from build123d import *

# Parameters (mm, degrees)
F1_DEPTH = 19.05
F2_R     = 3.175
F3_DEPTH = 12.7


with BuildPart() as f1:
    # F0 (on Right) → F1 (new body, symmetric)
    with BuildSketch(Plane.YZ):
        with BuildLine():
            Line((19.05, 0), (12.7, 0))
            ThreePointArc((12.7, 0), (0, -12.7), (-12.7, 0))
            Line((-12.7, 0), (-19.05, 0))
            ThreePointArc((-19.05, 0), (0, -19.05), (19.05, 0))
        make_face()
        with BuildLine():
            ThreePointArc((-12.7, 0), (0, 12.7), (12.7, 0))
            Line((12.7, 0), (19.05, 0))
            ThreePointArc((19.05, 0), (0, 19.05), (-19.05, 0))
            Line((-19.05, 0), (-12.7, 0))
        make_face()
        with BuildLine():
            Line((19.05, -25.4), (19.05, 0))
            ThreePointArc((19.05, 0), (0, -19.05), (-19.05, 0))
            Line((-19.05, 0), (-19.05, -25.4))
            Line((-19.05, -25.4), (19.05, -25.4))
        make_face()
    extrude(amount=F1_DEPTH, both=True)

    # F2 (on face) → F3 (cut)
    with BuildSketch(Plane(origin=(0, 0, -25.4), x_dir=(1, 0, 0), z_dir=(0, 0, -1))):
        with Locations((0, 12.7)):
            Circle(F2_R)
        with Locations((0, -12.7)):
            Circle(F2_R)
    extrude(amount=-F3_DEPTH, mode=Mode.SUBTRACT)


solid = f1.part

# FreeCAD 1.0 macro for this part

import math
import FreeCAD as App
import Part
import Sketcher
from FreeCAD import Vector
Q = App.Units.Quantity

doc = App.newDocument("Part")
body = doc.addObject("PartDesign::Body", "Body")

# Sketch on YZ plane
sketch1 = body.newObject("Sketcher::SketchObject", "Sketch")
sketch1.AttachmentSupport = (doc.getObject("YZ_Plane"), [""])
sketch1.MapMode = "FlatFace"
sketch1.addGeometry(Part.ArcOfCircle(Part.Circle(Vector(0, 0, 0), Vector(0, 0, 1), 19), math.radians(0), math.radians(180)), False)
sketch1.addGeometry(Part.LineSegment(Vector(-19, 0, 0), Vector(-19, -25, 0)), False)
sketch1.addGeometry(Part.LineSegment(Vector(-19, -25, 0), Vector(19, -25, 0)), False)
sketch1.addGeometry(Part.LineSegment(Vector(19, -25, 0), Vector(19, 0, 0)), False)
sketch1.addGeometry(Part.Circle(Vector(0, 0, 0), Vector(0, 0, 1), 13), False)
sketch1.addConstraint(Sketcher.Constraint("Tangent", 0, 2, 1, 1))
sketch1.addConstraint(Sketcher.Constraint("Coincident", 1, 2, 2, 1))
sketch1.addConstraint(Sketcher.Constraint("Coincident", 2, 2, 3, 1))
sketch1.addConstraint(Sketcher.Constraint("Tangent", 3, 2, 0, 1))
sketch1.addConstraint(Sketcher.Constraint("Vertical", 1))
sketch1.addConstraint(Sketcher.Constraint("Horizontal", 2))
sketch1.addConstraint(Sketcher.Constraint("Vertical", 3))
sketch1.addConstraint(Sketcher.Constraint("Coincident", 0, 3, -1, 1))
sketch1.addConstraint(Sketcher.Constraint("Coincident", 4, 3, -1, 1))
sketch1.addConstraint(Sketcher.Constraint("Diameter", 4, Q("1 in")))
sketch1.addConstraint(Sketcher.Constraint("DistanceY", 1, 2, 1, 1, Q("1 in")))
sketch1.addConstraint(Sketcher.Constraint("Radius", 0, Q("0.75 in")))
pad1 = body.newObject("PartDesign::Pad", "Pad")
pad1.Profile = sketch1
pad1.Length = Q("1.5 in")
pad1.Midplane = True

# Sketch on XY plane
sketch2 = body.newObject("Sketcher::SketchObject", "Sketch001")
sketch2.AttachmentSupport = (doc.getObject("XY_Plane"), [""])
sketch2.MapMode = "FlatFace"
sketch2.AttachmentOffset = App.Placement(Vector(0, 0, -1 * 25.4), App.Rotation())
sketch2.addGeometry(Part.Circle(Vector(0, -12.7, 0), Vector(0, 0, 1), 3.2), False)
sketch2.addGeometry(Part.Circle(Vector(0, 12.7, 0), Vector(0, 0, 1), 3.2), False)
sketch2.addConstraint(Sketcher.Constraint("Equal", 0, 1))
sketch2.addConstraint(Sketcher.Constraint("Symmetric", 0, 3, 1, 3, -1, 1))
sketch2.addConstraint(Sketcher.Constraint("PointOnObject", 0, 3, -2))
sketch2.addConstraint(Sketcher.Constraint("Diameter", 0, Q("0.25 in")))
sketch2.addConstraint(Sketcher.Constraint("DistanceY", 0, 3, 1, 3, Q("1 in")))
pocket1 = body.newObject("PartDesign::Pocket", "Pocket")
pocket1.Profile = sketch2
pocket1.Length = Q("0.5 in")
pocket1.Reversed = True

doc.recompute()
